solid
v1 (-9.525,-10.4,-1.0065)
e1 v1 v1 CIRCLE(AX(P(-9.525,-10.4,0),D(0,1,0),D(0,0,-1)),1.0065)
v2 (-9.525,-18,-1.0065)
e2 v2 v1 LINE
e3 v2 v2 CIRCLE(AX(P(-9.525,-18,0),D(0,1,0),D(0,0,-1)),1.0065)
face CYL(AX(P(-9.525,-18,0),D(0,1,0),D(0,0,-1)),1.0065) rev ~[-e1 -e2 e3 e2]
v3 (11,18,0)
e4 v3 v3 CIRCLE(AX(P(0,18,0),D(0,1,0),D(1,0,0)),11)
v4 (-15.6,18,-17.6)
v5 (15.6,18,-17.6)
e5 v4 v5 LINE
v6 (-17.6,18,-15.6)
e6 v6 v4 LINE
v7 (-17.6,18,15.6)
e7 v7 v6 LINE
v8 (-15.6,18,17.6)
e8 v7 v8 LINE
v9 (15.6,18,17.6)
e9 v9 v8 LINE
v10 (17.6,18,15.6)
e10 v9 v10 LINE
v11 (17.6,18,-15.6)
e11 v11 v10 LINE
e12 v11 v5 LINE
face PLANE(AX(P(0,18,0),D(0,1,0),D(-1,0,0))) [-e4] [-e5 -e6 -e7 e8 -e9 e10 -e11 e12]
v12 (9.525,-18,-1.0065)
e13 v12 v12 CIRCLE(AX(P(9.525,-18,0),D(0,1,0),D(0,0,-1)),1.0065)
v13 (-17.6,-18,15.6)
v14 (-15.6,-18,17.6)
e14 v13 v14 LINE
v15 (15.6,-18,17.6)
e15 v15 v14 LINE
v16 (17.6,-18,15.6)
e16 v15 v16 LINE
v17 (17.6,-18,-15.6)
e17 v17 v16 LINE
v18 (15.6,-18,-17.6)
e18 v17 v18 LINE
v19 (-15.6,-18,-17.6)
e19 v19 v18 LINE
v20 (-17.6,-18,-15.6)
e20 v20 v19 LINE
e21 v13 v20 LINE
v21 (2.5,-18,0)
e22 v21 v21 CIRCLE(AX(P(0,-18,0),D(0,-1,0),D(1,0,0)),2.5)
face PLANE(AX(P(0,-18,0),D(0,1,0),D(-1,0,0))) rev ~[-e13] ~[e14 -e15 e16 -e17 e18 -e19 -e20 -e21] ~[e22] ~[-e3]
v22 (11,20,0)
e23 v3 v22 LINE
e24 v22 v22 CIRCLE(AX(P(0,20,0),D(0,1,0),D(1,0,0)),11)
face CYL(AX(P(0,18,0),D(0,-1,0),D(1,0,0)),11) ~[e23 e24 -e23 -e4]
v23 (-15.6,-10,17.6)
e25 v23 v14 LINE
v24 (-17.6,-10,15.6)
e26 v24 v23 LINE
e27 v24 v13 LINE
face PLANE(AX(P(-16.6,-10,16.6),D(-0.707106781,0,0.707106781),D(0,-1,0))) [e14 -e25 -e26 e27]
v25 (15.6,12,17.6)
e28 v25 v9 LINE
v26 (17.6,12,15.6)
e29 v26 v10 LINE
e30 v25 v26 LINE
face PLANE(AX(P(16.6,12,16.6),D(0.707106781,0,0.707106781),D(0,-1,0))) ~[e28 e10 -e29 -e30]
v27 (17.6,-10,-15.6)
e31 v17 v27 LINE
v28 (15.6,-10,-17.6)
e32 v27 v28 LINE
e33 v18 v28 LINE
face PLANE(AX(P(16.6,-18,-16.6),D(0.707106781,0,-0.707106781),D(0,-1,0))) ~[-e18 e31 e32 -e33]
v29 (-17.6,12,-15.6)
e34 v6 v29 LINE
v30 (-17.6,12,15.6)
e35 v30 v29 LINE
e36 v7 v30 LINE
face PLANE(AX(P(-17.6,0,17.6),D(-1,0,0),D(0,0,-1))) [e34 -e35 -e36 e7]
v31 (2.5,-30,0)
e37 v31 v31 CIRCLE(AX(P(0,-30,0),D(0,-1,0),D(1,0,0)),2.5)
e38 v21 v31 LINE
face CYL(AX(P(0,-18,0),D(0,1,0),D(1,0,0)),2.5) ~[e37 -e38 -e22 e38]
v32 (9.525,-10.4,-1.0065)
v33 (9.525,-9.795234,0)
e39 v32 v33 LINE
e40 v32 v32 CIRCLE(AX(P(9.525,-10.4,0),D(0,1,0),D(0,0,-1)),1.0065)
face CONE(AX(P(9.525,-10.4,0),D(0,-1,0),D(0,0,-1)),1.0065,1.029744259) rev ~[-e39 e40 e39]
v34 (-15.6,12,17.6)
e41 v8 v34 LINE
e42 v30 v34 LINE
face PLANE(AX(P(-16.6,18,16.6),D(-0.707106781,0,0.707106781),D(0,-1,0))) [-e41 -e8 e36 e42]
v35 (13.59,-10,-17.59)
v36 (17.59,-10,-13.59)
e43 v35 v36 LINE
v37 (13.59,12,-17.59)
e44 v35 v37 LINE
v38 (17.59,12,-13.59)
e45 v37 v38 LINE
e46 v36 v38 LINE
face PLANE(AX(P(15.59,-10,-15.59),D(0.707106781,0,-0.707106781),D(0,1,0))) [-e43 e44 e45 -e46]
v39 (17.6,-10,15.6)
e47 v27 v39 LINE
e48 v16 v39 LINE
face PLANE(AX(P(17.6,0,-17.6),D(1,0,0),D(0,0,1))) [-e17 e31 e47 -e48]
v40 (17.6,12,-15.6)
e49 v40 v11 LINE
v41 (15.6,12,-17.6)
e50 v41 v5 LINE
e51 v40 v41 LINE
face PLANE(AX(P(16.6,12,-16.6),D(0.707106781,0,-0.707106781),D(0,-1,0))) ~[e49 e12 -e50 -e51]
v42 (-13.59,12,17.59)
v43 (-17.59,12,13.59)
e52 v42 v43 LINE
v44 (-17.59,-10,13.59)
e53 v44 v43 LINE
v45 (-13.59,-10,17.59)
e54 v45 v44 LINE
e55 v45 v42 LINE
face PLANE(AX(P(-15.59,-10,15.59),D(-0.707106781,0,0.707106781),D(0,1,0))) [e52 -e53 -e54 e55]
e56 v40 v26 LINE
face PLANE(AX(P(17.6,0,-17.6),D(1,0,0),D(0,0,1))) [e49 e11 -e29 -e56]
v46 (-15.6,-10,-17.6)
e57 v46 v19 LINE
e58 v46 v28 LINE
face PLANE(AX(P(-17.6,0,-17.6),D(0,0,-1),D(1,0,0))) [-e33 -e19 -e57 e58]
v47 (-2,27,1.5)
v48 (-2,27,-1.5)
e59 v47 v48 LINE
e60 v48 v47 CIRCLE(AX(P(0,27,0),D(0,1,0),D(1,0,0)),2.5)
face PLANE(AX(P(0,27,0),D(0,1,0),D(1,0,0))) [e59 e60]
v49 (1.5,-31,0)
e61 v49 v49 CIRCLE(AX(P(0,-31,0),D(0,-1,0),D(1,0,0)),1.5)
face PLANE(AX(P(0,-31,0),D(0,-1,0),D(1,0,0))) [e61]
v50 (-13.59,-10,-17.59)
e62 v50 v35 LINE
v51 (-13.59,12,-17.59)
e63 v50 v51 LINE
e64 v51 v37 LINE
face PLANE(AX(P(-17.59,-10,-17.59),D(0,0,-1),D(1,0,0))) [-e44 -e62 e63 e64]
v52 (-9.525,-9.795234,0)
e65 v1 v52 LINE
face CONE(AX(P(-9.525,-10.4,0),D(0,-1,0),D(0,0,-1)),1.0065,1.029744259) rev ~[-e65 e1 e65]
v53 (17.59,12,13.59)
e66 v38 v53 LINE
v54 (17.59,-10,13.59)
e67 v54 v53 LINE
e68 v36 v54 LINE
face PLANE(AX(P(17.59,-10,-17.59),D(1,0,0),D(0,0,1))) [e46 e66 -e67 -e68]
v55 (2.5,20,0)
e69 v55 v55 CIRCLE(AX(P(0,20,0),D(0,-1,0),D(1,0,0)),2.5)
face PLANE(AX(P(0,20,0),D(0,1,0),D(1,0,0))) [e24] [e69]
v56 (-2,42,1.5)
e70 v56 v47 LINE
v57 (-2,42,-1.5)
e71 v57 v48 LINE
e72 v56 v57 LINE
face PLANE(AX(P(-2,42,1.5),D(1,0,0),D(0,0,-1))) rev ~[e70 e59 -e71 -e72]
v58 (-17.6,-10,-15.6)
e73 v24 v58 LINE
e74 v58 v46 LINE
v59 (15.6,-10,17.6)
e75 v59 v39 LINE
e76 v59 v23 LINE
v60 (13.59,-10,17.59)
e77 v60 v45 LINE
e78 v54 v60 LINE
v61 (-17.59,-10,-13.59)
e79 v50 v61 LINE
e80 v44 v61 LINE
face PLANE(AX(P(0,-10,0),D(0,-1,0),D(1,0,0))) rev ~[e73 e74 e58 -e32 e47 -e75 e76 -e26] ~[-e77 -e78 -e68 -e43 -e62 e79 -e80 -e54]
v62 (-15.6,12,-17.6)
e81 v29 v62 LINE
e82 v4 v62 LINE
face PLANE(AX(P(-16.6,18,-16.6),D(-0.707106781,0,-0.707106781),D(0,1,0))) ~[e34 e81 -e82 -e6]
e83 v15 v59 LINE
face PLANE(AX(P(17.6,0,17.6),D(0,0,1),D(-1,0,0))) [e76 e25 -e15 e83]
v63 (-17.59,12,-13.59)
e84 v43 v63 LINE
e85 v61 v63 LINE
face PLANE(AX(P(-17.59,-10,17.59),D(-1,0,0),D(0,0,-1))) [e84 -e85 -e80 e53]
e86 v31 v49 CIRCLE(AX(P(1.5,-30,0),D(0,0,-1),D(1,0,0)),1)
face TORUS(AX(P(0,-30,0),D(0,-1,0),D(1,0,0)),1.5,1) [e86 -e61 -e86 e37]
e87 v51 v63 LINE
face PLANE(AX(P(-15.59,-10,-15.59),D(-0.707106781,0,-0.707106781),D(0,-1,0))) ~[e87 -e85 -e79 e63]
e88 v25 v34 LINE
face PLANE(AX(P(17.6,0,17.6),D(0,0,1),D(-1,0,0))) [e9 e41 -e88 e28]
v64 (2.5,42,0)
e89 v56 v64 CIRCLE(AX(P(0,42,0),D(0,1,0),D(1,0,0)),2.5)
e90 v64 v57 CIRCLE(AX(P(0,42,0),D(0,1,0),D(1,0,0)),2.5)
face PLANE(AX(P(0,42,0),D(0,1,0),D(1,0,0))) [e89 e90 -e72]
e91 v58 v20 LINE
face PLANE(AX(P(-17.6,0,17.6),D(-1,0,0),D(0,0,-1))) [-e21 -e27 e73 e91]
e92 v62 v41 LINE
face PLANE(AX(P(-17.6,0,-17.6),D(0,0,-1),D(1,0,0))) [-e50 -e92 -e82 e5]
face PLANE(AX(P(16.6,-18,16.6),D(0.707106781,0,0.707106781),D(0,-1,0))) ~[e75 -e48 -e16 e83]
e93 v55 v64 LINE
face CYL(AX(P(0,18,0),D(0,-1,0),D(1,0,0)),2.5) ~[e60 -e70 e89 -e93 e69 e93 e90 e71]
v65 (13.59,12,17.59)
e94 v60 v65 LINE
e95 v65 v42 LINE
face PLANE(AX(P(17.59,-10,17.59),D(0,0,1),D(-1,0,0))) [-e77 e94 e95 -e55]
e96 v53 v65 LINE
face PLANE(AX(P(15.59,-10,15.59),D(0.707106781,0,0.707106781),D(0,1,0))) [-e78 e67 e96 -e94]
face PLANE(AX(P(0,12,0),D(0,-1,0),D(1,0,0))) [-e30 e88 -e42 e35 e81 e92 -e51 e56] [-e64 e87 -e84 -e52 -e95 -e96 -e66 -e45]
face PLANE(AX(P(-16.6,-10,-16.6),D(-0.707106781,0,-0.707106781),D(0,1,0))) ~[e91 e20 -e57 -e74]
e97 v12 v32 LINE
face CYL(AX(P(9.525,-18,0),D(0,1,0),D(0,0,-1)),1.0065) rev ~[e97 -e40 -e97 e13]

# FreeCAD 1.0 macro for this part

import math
import FreeCAD as App
import Part
import Sketcher


def edges_at(feature, points):
    """Names of the edges that pass closest to the given points."""
    edges = feature.Shape.Edges
    near = lambda p: min(range(len(edges)), key=lambda i: edges[i].distToShape(Part.Vertex(*p))[0])
    return sorted({f"Edge{near(p) + 1}" for p in points})

doc = App.newDocument("Part")
body = doc.addObject("PartDesign::Body", "Body")

# Sketch on XZ plane
sketch1 = body.newObject("Sketcher::SketchObject", "Sketch")
sketch1.AttachmentSupport = (doc.getObject("XZ_Plane"), [""])
sketch1.MapMode = "FlatFace"
sketch1.addGeometry([
    Part.LineSegment(App.Vector(-18, 18, 0), App.Vector(18, 18, 0)),
    Part.LineSegment(App.Vector(18, 18, 0), App.Vector(18, -18, 0)),
    Part.LineSegment(App.Vector(18, -18, 0), App.Vector(-18, -18, 0)),
    Part.LineSegment(App.Vector(-18, -18, 0), App.Vector(-18, 18, 0)),
], False)
sketch1.addConstraint([
    Sketcher.Constraint("Coincident", 0, 2, 1, 1),
    Sketcher.Constraint("Coincident", 1, 2, 2, 1),
    Sketcher.Constraint("Coincident", 2, 2, 3, 1),
    Sketcher.Constraint("Coincident", 3, 2, 0, 1),
    Sketcher.Constraint("Horizontal", 0),
    Sketcher.Constraint("Vertical", 1),
    Sketcher.Constraint("Horizontal", 2),
    Sketcher.Constraint("Vertical", 3),
    Sketcher.Constraint("Symmetric", 0, 2, 2, 2, -1, 1),
    Sketcher.Constraint("Equal", 2, 1),
    Sketcher.Constraint("DistanceX", 0, 1, 0, 2, 35.2),
])
pad1 = body.newObject("PartDesign::Pad", "Pad")
pad1.Profile = sketch1
pad1.Length = 36
pad1.Midplane = True

# Sketch on XZ plane
sketch2 = body.newObject("Sketcher::SketchObject", "Sketch001")
sketch2.AttachmentSupport = (doc.getObject("XZ_Plane"), [""])
sketch2.MapMode = "FlatFace"
sketch2.AttachmentOffset = App.Placement(App.Vector(0, 0, -18), App.Rotation())
sketch2.addGeometry(Part.Circle(App.Vector(0, 0, 0), App.Vector(0, 0, 1), 11), False)
sketch2.addConstraint([
    Sketcher.Constraint("Coincident", 0, 3, -1, 1),
    Sketcher.Constraint("Diameter", 0, 22.0),
])
pad2 = body.newObject("PartDesign::Pad", "Pad001")
pad2.Profile = sketch2
pad2.Length = 2
pad2.Reversed = True

# Sketch on XZ plane
sketch3 = body.newObject("Sketcher::SketchObject", "Sketch002")
sketch3.AttachmentSupport = (doc.getObject("XZ_Plane"), [""])
sketch3.MapMode = "FlatFace"
sketch3.AttachmentOffset = App.Placement(App.Vector(0, 0, -18), App.Rotation())
sketch3.addGeometry(Part.Circle(App.Vector(0, 0, 0), App.Vector(0, 0, 1), 2.5), False)
sketch3.addConstraint([
    Sketcher.Constraint("Coincident", 0, 3, -1, 1),
    Sketcher.Constraint("Diameter", 0, 5.0),
])
pad3 = body.newObject("PartDesign::Pad", "Pad002")
pad3.Profile = sketch3
pad3.Length = 24
pad3.Reversed = True

# Sketch on XZ plane
sketch4 = body.newObject("Sketcher::SketchObject", "Sketch003")
sketch4.AttachmentSupport = (doc.getObject("XZ_Plane"), [""])
sketch4.MapMode = "FlatFace"
sketch4.AttachmentOffset = App.Placement(App.Vector(0, 0, -42), App.Rotation())
sketch4.addGeometry([
    Part.LineSegment(App.Vector(-2, 1.5, 0), App.Vector(-2, -1.5, 0)),
    Part.ArcOfCircle(Part.Circle(App.Vector(0, 0, 0), App.Vector(0, 0, 1), 2.5), math.radians(143), math.radians(217)),
], False)
sketch4.addConstraint([
    Sketcher.Constraint("Coincident", 0, 1, 1, 1),
    Sketcher.Constraint("Coincident", 1, 2, 0, 2),
    Sketcher.Constraint("Vertical", 0),
    Sketcher.Constraint("Coincident", 1, 3, -1, 1),
    Sketcher.Constraint("Radius", 1, 2.5),
    Sketcher.Constraint("DistanceY", 0, 2, 0, 1, 3.0),
])
pocket1 = body.newObject("PartDesign::Pocket", "Pocket")
pocket1.Profile = sketch4
pocket1.Length = 15
pocket1.Reversed = True

# Sketch on XZ plane
sketch5 = body.newObject("Sketcher::SketchObject", "Sketch004")
sketch5.AttachmentSupport = (doc.getObject("XZ_Plane"), [""])
sketch5.MapMode = "FlatFace"
sketch5.AttachmentOffset = App.Placement(App.Vector(0, 0, 10), App.Rotation())
sketch5.addGeometry([
    Part.LineSegment(App.Vector(-18, 18, 0), App.Vector(-18, -18, 0)),  # 0
    Part.LineSegment(App.Vector(-18, -18, 0), App.Vector(18, -18, 0)),  # 1
    Part.LineSegment(App.Vector(18, -18, 0), App.Vector(18, 18, 0)),  # 2
    Part.LineSegment(App.Vector(18, 18, 0), App.Vector(-18, 18, 0)),  # 3
    Part.LineSegment(App.Vector(18, -18, 0), App.Vector(-18, -18, 0)),  # 4
    Part.LineSegment(App.Vector(-18, -18, 0), App.Vector(-18, 18, 0)),  # 5
    Part.LineSegment(App.Vector(-18, 18, 0), App.Vector(18, 18, 0)),  # 6
    Part.LineSegment(App.Vector(18, 18, 0), App.Vector(18, -18, 0)),  # 7
], False)
sketch5.addConstraint([
    Sketcher.Constraint("Coincident", 0, 2, 1, 1),
    Sketcher.Constraint("Coincident", 1, 2, 2, 1),
    Sketcher.Constraint("Coincident", 2, 2, 3, 1),
    Sketcher.Constraint("Coincident", 3, 2, 0, 1),
    Sketcher.Constraint("Coincident", 4, 2, 5, 1),
    Sketcher.Constraint("Coincident", 5, 2, 6, 1),
    Sketcher.Constraint("Coincident", 6, 2, 7, 1),
    Sketcher.Constraint("Coincident", 7, 2, 4, 1),
    Sketcher.Constraint("Vertical", 0),
    Sketcher.Constraint("Horizontal", 1),
    Sketcher.Constraint("Vertical", 2),
    Sketcher.Constraint("Horizontal", 3),
    Sketcher.Constraint("Horizontal", 4),
    Sketcher.Constraint("Vertical", 5),
    Sketcher.Constraint("Horizontal", 6),
    Sketcher.Constraint("Vertical", 7),
    Sketcher.Constraint("Symmetric", 0, 2, 2, 2, -1, 1),
    Sketcher.Constraint("Symmetric", 4, 2, 6, 2, -1, 1),
    Sketcher.Constraint("Equal", 3, 0),
    Sketcher.Constraint("Equal", 6, 5),
    Sketcher.Constraint("DistanceX", 0, 2, 4, 2, 0.01),
    Sketcher.Constraint("DistanceX", 1, 1, 1, 2, 35.2),
])
pocket2 = body.newObject("PartDesign::Pocket", "Pocket001")
pocket2.Profile = sketch5
pocket2.Length = 22
doc.recompute()

chamfer = body.newObject("PartDesign::Chamfer", "Chamfer")
chamfer.Base = (pocket2, edges_at(pocket2, [
    (-17.59, 1, 17.59),
    (-17.59, 1, -17.59),
    (17.59, 1, 17.59),
    (17.59, 1, -17.59),
]))
chamfer.Size = 4
doc.recompute()

chamfer2 = body.newObject("PartDesign::Chamfer", "Chamfer001")
chamfer2.Base = (chamfer, edges_at(chamfer, [
    (-17.6, 15, 17.6),
    (-17.6, -14, 17.6),
    (17.6, 15, 17.6),
    (17.6, -14, 17.6),
    (-17.6, -14, -17.6),
    (17.6, 15, -17.6),
    (17.6, -14, -17.6),
    (-17.6, 15, -17.6),
]))
chamfer2.Size = 2

# Sketch on XZ plane
sketch6 = body.newObject("Sketcher::SketchObject", "Sketch005")
sketch6.AttachmentSupport = (doc.getObject("XZ_Plane"), [""])
sketch6.MapMode = "FlatFace"
sketch6.AttachmentOffset = App.Placement(App.Vector(0, 0, 18), App.Rotation())
sketch6.addGeometry(Part.Circle(App.Vector(0, 0, 0), App.Vector(0, 0, 1), 2.5), False)
sketch6.addConstraint([
    Sketcher.Constraint("Coincident", 0, 3, -1, 1),
    Sketcher.Constraint("Diameter", 0, 5.0),
])
pad4 = body.newObject("PartDesign::Pad", "Pad003")
pad4.Profile = sketch6
pad4.Length = 13
doc.recompute()

fillet = body.newObject("PartDesign::Fillet", "Fillet")
fillet.Base = (pad4, edges_at(pad4, [(-2.5, -31, 0)]))
fillet.Radius = 1

# Sketch on XZ plane
sketch7 = body.newObject("Sketcher::SketchObject", "Sketch006")
sketch7.AttachmentSupport = (doc.getObject("XZ_Plane"), [""])
sketch7.MapMode = "FlatFace"
sketch7.AttachmentOffset = App.Placement(App.Vector(0, 0, 18), App.Rotation())
sketch7.addGeometry([
    Part.Circle(App.Vector(-9.5, 0, 0), App.Vector(0, 0, 1), 1),
    Part.Circle(App.Vector(9.5, 0, 0), App.Vector(0, 0, 1), 1),
], False)
sketch7.addConstraint([
    Sketcher.Constraint("Equal", 0, 1),
    Sketcher.Constraint("Symmetric", 0, 3, 1, 3, -1, 1),
    Sketcher.Constraint("PointOnObject", 0, 3, -1),
    Sketcher.Constraint("Diameter", 0, 2.013),
    Sketcher.Constraint("DistanceX", 0, 3, 1, 3, 19.05),
])
doc.recompute()
hole = body.newObject("PartDesign::Hole", "Hole")
hole.Profile = sketch7
hole.ThreadType = "None"
hole.Diameter = 2.013
hole.DepthType = "Dimension"
hole.Depth = 7.6
hole.DrillPoint = "Angled"
hole.DrillPointAngle = 118

doc.recompute()
